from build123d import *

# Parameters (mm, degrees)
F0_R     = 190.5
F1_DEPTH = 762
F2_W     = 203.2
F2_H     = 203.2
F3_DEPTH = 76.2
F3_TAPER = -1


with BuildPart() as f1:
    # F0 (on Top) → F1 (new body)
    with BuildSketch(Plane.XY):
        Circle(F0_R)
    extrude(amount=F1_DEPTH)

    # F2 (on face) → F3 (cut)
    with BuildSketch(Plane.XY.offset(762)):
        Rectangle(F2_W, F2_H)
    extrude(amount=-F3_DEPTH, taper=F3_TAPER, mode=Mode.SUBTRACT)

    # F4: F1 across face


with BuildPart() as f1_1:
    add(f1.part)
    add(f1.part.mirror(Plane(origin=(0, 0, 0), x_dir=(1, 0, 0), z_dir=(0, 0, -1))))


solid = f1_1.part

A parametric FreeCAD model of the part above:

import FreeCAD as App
import Part
import Sketcher

V = App.Vector
Q = App.Units.Quantity


def add_polygon(sketch, points):
    """Adds a closed chain of lines whose ends are joined by coincident constraints."""
    first, n = sketch.GeometryCount, len(points)
    for a, b in zip(points, points[1:] + points[:1]):
        sketch.addGeometry(Part.LineSegment(App.Vector(*a, 0), App.Vector(*b, 0)), False)
    for i in range(n):
        sketch.addConstraint(Sketcher.Constraint("Coincident", first + i, 2, first + (i + 1) % n, 1))

doc = App.newDocument("Part")
body = doc.addObject("PartDesign::Body", "Body")

# Sketch on XY plane
sketch1 = body.newObject("Sketcher::SketchObject", "Sketch")
sketch1.AttachmentSupport = (doc.getObject("XY_Plane"), [""])
sketch1.MapMode = "FlatFace"
sketch1.addGeometry(Part.Circle(V(0, 0, 0), V(0, 0, 1), 190), False)
sketch1.addConstraint(Sketcher.Constraint("Coincident", 0, 3, -1, 1))
sketch1.addConstraint(Sketcher.Constraint("Diameter", 0, Q("15 in")))
pad1 = body.newObject("PartDesign::Pad", "Pad")
pad1.Profile = sketch1
pad1.Length = Q("30 in")

# Sketch on XY plane
sketch2 = body.newObject("Sketcher::SketchObject", "Sketch001")
sketch2.AttachmentSupport = (doc.getObject("XY_Plane"), [""])
sketch2.MapMode = "FlatFace"
sketch2.AttachmentOffset = App.Placement(V(0, 0, 30 * 25.4), App.Rotation())
add_polygon(sketch2, [(-102, 102), (-102, -102), (102, -102), (102, 102)])  # lines 0-3
sketch2.addConstraint(Sketcher.Constraint("Vertical", 0))
sketch2.addConstraint(Sketcher.Constraint("Horizontal", 1))
sketch2.addConstraint(Sketcher.Constraint("Vertical", 2))
sketch2.addConstraint(Sketcher.Constraint("Horizontal", 3))
sketch2.addConstraint(Sketcher.Constraint("Symmetric", 0, 2, 2, 2, -1, 1))
sketch2.addConstraint(Sketcher.Constraint("Equal", 3, 0))
sketch2.addConstraint(Sketcher.Constraint("DistanceX", 1, 1, 1, 2, Q("8 in")))
pocket1 = body.newObject("PartDesign::Pocket", "Pocket")
pocket1.Profile = sketch2
pocket1.Length = Q("3 in")
pocket1.TaperAngle = 1
body2 = doc.addObject("PartDesign::Body", "Body001")
doc.recompute()

body2.BaseFeature = body
doc.recompute()

mirroring = doc.addObject("Part::Mirroring", "Mirroring")
mirroring.Source = body
mirroring.Base = V(0, 0, 0)
mirroring.Normal = V(0, 0, -1)
body3 = doc.addObject("PartDesign::Body", "Body002")
body3.BaseFeature = mirroring
boolean = body2.newObject("PartDesign::Boolean", "Boolean")
boolean.Type = "Fuse"
boolean.addObjects([body3])
doc.recompute()
mirroring.Visibility = False

doc.recompute()
